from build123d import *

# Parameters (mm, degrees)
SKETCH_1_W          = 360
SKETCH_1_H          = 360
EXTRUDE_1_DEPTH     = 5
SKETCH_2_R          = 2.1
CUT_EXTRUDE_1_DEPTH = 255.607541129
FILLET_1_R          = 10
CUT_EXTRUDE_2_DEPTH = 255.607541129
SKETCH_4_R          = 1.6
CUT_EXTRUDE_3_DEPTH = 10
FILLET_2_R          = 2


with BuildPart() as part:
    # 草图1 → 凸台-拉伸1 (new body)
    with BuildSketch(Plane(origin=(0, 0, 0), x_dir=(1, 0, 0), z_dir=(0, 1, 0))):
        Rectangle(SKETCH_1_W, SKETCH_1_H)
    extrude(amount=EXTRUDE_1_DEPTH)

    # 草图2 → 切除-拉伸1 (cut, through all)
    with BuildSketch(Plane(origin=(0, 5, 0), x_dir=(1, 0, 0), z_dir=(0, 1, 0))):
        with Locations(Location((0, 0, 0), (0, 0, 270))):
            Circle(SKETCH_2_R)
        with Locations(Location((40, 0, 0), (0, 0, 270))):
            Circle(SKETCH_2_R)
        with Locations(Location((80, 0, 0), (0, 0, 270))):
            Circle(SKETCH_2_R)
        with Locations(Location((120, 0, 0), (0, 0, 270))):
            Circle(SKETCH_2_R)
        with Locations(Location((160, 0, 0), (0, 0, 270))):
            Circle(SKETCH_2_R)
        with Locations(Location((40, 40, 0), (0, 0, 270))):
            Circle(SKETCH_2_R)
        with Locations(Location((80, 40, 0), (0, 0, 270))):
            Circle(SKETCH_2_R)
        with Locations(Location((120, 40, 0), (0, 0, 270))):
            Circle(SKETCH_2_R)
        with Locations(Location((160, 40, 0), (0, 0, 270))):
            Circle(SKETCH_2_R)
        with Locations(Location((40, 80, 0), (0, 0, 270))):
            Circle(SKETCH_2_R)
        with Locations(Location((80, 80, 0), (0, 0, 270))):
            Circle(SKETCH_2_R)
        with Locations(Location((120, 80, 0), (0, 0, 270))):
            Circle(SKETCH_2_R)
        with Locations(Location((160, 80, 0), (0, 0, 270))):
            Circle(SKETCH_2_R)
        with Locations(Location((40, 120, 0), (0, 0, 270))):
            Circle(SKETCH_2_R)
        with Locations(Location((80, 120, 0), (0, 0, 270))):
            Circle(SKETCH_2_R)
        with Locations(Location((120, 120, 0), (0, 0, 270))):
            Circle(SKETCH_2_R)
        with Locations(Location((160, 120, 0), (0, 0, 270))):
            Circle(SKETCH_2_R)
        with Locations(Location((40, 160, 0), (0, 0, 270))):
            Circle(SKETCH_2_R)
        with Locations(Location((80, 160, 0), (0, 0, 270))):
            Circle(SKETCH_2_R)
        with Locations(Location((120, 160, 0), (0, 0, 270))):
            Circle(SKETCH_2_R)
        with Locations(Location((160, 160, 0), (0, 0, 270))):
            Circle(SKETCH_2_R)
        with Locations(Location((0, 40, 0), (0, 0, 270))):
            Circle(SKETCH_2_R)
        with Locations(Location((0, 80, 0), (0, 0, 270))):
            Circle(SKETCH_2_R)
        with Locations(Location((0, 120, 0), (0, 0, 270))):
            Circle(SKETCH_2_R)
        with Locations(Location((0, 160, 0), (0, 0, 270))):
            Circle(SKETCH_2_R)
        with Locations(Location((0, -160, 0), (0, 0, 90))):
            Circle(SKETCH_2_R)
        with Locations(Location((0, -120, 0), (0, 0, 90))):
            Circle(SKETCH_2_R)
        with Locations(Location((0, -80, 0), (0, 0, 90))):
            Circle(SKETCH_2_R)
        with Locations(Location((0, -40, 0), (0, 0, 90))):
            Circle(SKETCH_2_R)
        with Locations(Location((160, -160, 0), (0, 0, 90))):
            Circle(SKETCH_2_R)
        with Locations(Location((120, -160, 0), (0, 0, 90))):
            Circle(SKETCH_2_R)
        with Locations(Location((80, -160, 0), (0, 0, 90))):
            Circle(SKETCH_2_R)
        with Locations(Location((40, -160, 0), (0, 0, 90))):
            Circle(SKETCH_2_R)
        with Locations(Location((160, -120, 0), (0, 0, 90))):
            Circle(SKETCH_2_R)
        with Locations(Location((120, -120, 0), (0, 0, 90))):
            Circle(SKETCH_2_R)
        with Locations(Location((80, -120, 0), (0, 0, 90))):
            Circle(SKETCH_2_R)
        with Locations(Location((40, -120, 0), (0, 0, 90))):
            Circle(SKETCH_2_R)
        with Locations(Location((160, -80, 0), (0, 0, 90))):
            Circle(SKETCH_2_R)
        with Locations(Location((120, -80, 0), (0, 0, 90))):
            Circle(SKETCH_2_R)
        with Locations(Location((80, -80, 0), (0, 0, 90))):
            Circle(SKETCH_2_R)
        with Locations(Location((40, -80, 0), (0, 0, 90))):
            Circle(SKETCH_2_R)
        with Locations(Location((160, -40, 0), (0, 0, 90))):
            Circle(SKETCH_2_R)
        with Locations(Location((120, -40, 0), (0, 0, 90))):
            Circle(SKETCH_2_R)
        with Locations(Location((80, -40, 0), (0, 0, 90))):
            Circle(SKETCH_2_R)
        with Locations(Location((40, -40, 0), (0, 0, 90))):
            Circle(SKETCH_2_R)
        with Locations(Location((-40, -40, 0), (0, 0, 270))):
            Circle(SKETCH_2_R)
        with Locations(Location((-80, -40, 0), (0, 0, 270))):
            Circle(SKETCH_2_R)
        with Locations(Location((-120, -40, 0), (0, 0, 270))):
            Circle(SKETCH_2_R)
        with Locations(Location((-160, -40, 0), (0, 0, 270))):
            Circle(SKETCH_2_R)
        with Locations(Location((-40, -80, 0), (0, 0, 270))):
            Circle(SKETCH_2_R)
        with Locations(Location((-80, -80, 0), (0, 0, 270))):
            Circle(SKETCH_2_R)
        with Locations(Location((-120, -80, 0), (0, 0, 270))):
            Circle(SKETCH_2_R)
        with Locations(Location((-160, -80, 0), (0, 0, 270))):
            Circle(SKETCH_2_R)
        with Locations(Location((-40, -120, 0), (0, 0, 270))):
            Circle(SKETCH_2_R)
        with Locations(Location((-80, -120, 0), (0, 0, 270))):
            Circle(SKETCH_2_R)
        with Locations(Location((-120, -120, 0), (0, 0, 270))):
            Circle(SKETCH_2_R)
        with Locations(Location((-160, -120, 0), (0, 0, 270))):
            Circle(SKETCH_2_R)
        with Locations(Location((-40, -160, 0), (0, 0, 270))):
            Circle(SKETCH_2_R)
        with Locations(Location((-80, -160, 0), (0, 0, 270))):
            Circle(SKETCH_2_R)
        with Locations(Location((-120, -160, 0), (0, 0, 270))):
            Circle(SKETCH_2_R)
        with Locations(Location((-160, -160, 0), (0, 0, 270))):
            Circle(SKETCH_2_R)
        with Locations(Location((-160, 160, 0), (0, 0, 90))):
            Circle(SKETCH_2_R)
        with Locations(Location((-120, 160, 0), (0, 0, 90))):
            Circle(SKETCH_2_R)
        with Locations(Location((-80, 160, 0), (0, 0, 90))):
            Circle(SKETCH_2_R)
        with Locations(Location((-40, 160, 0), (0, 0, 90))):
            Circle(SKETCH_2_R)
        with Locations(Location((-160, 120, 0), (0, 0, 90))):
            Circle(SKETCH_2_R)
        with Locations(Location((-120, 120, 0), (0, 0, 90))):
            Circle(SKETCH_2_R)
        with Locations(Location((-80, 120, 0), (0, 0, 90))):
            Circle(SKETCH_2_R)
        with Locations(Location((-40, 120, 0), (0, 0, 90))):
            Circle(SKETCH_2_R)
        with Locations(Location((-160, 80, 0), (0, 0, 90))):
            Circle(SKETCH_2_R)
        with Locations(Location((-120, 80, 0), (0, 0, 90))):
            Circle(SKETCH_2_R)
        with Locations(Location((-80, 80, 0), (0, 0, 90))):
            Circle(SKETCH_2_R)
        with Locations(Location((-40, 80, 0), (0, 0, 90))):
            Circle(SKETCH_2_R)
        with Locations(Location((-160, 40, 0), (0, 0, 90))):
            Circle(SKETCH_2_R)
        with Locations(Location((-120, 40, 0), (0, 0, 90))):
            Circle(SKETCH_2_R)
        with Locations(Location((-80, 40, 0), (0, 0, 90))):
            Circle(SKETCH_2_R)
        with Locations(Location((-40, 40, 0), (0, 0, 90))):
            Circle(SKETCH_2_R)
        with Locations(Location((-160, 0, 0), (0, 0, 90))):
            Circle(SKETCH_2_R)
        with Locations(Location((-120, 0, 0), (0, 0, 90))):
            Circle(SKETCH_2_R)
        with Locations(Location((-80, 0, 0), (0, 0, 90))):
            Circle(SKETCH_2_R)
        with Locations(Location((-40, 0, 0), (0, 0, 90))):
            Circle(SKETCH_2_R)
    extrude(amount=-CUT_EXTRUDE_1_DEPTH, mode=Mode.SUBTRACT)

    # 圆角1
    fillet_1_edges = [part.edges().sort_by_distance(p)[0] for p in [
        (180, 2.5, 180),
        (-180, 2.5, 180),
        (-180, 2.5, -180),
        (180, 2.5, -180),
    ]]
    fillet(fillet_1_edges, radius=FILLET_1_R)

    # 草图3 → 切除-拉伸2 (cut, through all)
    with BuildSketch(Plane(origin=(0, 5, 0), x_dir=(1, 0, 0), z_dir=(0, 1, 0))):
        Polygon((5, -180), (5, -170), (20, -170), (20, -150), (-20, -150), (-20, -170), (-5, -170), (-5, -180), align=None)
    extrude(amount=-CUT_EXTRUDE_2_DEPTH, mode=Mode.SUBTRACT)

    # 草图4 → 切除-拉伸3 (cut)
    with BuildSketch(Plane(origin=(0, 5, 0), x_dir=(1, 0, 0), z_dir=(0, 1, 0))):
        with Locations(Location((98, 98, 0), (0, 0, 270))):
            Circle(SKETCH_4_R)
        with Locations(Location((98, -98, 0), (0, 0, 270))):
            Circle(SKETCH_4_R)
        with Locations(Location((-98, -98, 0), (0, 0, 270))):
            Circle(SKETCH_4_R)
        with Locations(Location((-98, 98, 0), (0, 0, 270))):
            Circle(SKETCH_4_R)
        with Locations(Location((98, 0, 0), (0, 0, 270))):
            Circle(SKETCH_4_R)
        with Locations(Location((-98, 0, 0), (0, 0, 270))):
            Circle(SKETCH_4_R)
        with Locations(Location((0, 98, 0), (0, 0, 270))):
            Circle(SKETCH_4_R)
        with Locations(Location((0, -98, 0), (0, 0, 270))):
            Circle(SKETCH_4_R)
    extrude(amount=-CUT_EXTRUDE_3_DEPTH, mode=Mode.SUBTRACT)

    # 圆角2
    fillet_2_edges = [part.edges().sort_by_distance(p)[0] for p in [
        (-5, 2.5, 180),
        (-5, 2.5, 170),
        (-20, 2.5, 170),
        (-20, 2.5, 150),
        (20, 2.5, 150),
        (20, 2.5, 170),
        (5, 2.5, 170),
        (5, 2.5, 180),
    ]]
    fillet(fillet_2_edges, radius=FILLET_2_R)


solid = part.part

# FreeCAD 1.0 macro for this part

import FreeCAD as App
import Part
import Sketcher
from FreeCAD import Vector


def edges_at(feature, points):
    """Names of the edges that pass closest to the given points."""
    edges = feature.Shape.Edges
    near = lambda p: min(range(len(edges)), key=lambda i: edges[i].distToShape(Part.Vertex(*p))[0])
    return sorted({f"Edge{near(p) + 1}" for p in points})

doc = App.newDocument("Part")
body = doc.addObject("PartDesign::Body", "Body")

sketch1 = body.newObject("Sketcher::SketchObject", "Sketch")
sketch1.AttachmentSupport = (doc.getObject("XZ_Plane"), [""])
sketch1.MapMode = "FlatFace"
sketch1.addGeometry(Part.LineSegment(Vector(-180, -180, 0), Vector(-180, 180, 0)), False)
sketch1.addGeometry(Part.LineSegment(Vector(-180, 180, 0), Vector(180, 180, 0)), False)
sketch1.addGeometry(Part.LineSegment(Vector(180, 180, 0), Vector(180, -180, 0)), False)
sketch1.addGeometry(Part.LineSegment(Vector(180, -180, 0), Vector(-180, -180, 0)), False)
sketch1.addConstraint(Sketcher.Constraint("Coincident", 0, 2, 1, 1))
sketch1.addConstraint(Sketcher.Constraint("Coincident", 1, 2, 2, 1))
sketch1.addConstraint(Sketcher.Constraint("Coincident", 2, 2, 3, 1))
sketch1.addConstraint(Sketcher.Constraint("Coincident", 3, 2, 0, 1))
sketch1.addConstraint(Sketcher.Constraint("Vertical", 0))
sketch1.addConstraint(Sketcher.Constraint("Horizontal", 1))
sketch1.addConstraint(Sketcher.Constraint("Vertical", 2))
sketch1.addConstraint(Sketcher.Constraint("Horizontal", 3))
sketch1.addConstraint(Sketcher.Constraint("Symmetric", 0, 2, 2, 2, -1, 1))
sketch1.addConstraint(Sketcher.Constraint("Equal", 3, 0))
sketch1.addConstraint(Sketcher.Constraint("DistanceX", 1, 1, 1, 2, 360.0))
pad1 = body.newObject("PartDesign::Pad", "Pad")
pad1.Profile = sketch1
pad1.Length = 5
pad1.Reversed = True

sketch2 = body.newObject("Sketcher::SketchObject", "Sketch001")
sketch2.AttachmentSupport = (doc.getObject("XZ_Plane"), [""])
sketch2.MapMode = "FlatFace"
sketch2.AttachmentOffset = App.Placement(Vector(0, 0, -5), App.Rotation())
sketch2.addGeometry(Part.Circle(Vector(0, 0, 0), Vector(0, 0, 1), 2.1), False)
sketch2.addGeometry(Part.Circle(Vector(40, 0, 0), Vector(0, 0, 1), 2.1), False)
sketch2.addGeometry(Part.Circle(Vector(80, 0, 0), Vector(0, 0, 1), 2.1), False)
sketch2.addGeometry(Part.Circle(Vector(120, 0, 0), Vector(0, 0, 1), 2.1), False)
sketch2.addGeometry(Part.Circle(Vector(160, 0, 0), Vector(0, 0, 1), 2.1), False)
sketch2.addGeometry(Part.Circle(Vector(40, -40, 0), Vector(0, 0, 1), 2.1), False)
sketch2.addGeometry(Part.Circle(Vector(80, -40, 0), Vector(0, 0, 1), 2.1), False)
sketch2.addGeometry(Part.Circle(Vector(120, -40, 0), Vector(0, 0, 1), 2.1), False)
sketch2.addGeometry(Part.Circle(Vector(160, -40, 0), Vector(0, 0, 1), 2.1), False)
sketch2.addGeometry(Part.Circle(Vector(40, -80, 0), Vector(0, 0, 1), 2.1), False)
sketch2.addGeometry(Part.Circle(Vector(80, -80, 0), Vector(0, 0, 1), 2.1), False)
sketch2.addGeometry(Part.Circle(Vector(120, -80, 0), Vector(0, 0, 1), 2.1), False)
sketch2.addGeometry(Part.Circle(Vector(160, -80, 0), Vector(0, 0, 1), 2.1), False)
sketch2.addGeometry(Part.Circle(Vector(40, -120, 0), Vector(0, 0, 1), 2.1), False)
sketch2.addGeometry(Part.Circle(Vector(80, -120, 0), Vector(0, 0, 1), 2.1), False)
sketch2.addGeometry(Part.Circle(Vector(120, -120, 0), Vector(0, 0, 1), 2.1), False)
sketch2.addGeometry(Part.Circle(Vector(160, -120, 0), Vector(0, 0, 1), 2.1), False)
sketch2.addGeometry(Part.Circle(Vector(40, -160, 0), Vector(0, 0, 1), 2.1), False)
sketch2.addGeometry(Part.Circle(Vector(80, -160, 0), Vector(0, 0, 1), 2.1), False)
sketch2.addGeometry(Part.Circle(Vector(120, -160, 0), Vector(0, 0, 1), 2.1), False)
sketch2.addGeometry(Part.Circle(Vector(160, -160, 0), Vector(0, 0, 1), 2.1), False)
sketch2.addGeometry(Part.Circle(Vector(0, -40, 0), Vector(0, 0, 1), 2.1), False)
sketch2.addGeometry(Part.Circle(Vector(0, -80, 0), Vector(0, 0, 1), 2.1), False)
sketch2.addGeometry(Part.Circle(Vector(0, -120, 0), Vector(0, 0, 1), 2.1), False)
sketch2.addGeometry(Part.Circle(Vector(0, -160, 0), Vector(0, 0, 1), 2.1), False)
sketch2.addGeometry(Part.Circle(Vector(0, 160, 0), Vector(0, 0, 1), 2.1), False)
sketch2.addGeometry(Part.Circle(Vector(0, 120, 0), Vector(0, 0, 1), 2.1), False)
sketch2.addGeometry(Part.Circle(Vector(0, 80, 0), Vector(0, 0, 1), 2.1), False)
sketch2.addGeometry(Part.Circle(Vector(0, 40, 0), Vector(0, 0, 1), 2.1), False)
sketch2.addGeometry(Part.Circle(Vector(160, 160, 0), Vector(0, 0, 1), 2.1), False)
sketch2.addGeometry(Part.Circle(Vector(120, 160, 0), Vector(0, 0, 1), 2.1), False)
sketch2.addGeometry(Part.Circle(Vector(80, 160, 0), Vector(0, 0, 1), 2.1), False)
sketch2.addGeometry(Part.Circle(Vector(40, 160, 0), Vector(0, 0, 1), 2.1), False)
sketch2.addGeometry(Part.Circle(Vector(160, 120, 0), Vector(0, 0, 1), 2.1), False)
sketch2.addGeometry(Part.Circle(Vector(120, 120, 0), Vector(0, 0, 1), 2.1), False)
sketch2.addGeometry(Part.Circle(Vector(80, 120, 0), Vector(0, 0, 1), 2.1), False)
sketch2.addGeometry(Part.Circle(Vector(40, 120, 0), Vector(0, 0, 1), 2.1), False)
sketch2.addGeometry(Part.Circle(Vector(160, 80, 0), Vector(0, 0, 1), 2.1), False)
sketch2.addGeometry(Part.Circle(Vector(120, 80, 0), Vector(0, 0, 1), 2.1), False)
sketch2.addGeometry(Part.Circle(Vector(80, 80, 0), Vector(0, 0, 1), 2.1), False)
sketch2.addGeometry(Part.Circle(Vector(40, 80, 0), Vector(0, 0, 1), 2.1), False)
sketch2.addGeometry(Part.Circle(Vector(160, 40, 0), Vector(0, 0, 1), 2.1), False)
sketch2.addGeometry(Part.Circle(Vector(120, 40, 0), Vector(0, 0, 1), 2.1), False)
sketch2.addGeometry(Part.Circle(Vector(80, 40, 0), Vector(0, 0, 1), 2.1), False)
sketch2.addGeometry(Part.Circle(Vector(40, 40, 0), Vector(0, 0, 1), 2.1), False)
sketch2.addGeometry(Part.Circle(Vector(-40, 40, 0), Vector(0, 0, 1), 2.1), False)
sketch2.addGeometry(Part.Circle(Vector(-80, 40, 0), Vector(0, 0, 1), 2.1), False)
sketch2.addGeometry(Part.Circle(Vector(-120, 40, 0), Vector(0, 0, 1), 2.1), False)
sketch2.addGeometry(Part.Circle(Vector(-160, 40, 0), Vector(0, 0, 1), 2.1), False)
sketch2.addGeometry(Part.Circle(Vector(-40, 80, 0), Vector(0, 0, 1), 2.1), False)
sketch2.addGeometry(Part.Circle(Vector(-80, 80, 0), Vector(0, 0, 1), 2.1), False)
sketch2.addGeometry(Part.Circle(Vector(-120, 80, 0), Vector(0, 0, 1), 2.1), False)
sketch2.addGeometry(Part.Circle(Vector(-160, 80, 0), Vector(0, 0, 1), 2.1), False)
sketch2.addGeometry(Part.Circle(Vector(-40, 120, 0), Vector(0, 0, 1), 2.1), False)
sketch2.addGeometry(Part.Circle(Vector(-80, 120, 0), Vector(0, 0, 1), 2.1), False)
sketch2.addGeometry(Part.Circle(Vector(-120, 120, 0), Vector(0, 0, 1), 2.1), False)
sketch2.addGeometry(Part.Circle(Vector(-160, 120, 0), Vector(0, 0, 1), 2.1), False)
sketch2.addGeometry(Part.Circle(Vector(-40, 160, 0), Vector(0, 0, 1), 2.1), False)
sketch2.addGeometry(Part.Circle(Vector(-80, 160, 0), Vector(0, 0, 1), 2.1), False)
sketch2.addGeometry(Part.Circle(Vector(-120, 160, 0), Vector(0, 0, 1), 2.1), False)
sketch2.addGeometry(Part.Circle(Vector(-160, 160, 0), Vector(0, 0, 1), 2.1), False)
sketch2.addGeometry(Part.Circle(Vector(-160, -160, 0), Vector(0, 0, 1), 2.1), False)
sketch2.addGeometry(Part.Circle(Vector(-120, -160, 0), Vector(0, 0, 1), 2.1), False)
sketch2.addGeometry(Part.Circle(Vector(-80, -160, 0), Vector(0, 0, 1), 2.1), False)
sketch2.addGeometry(Part.Circle(Vector(-40, -160, 0), Vector(0, 0, 1), 2.1), False)
sketch2.addGeometry(Part.Circle(Vector(-160, -120, 0), Vector(0, 0, 1), 2.1), False)
sketch2.addGeometry(Part.Circle(Vector(-120, -120, 0), Vector(0, 0, 1), 2.1), False)
sketch2.addGeometry(Part.Circle(Vector(-80, -120, 0), Vector(0, 0, 1), 2.1), False)
sketch2.addGeometry(Part.Circle(Vector(-40, -120, 0), Vector(0, 0, 1), 2.1), False)
sketch2.addGeometry(Part.Circle(Vector(-160, -80, 0), Vector(0, 0, 1), 2.1), False)
sketch2.addGeometry(Part.Circle(Vector(-120, -80, 0), Vector(0, 0, 1), 2.1), False)
sketch2.addGeometry(Part.Circle(Vector(-80, -80, 0), Vector(0, 0, 1), 2.1), False)
sketch2.addGeometry(Part.Circle(Vector(-40, -80, 0), Vector(0, 0, 1), 2.1), False)
sketch2.addGeometry(Part.Circle(Vector(-160, -40, 0), Vector(0, 0, 1), 2.1), False)
sketch2.addGeometry(Part.Circle(Vector(-120, -40, 0), Vector(0, 0, 1), 2.1), False)
sketch2.addGeometry(Part.Circle(Vector(-80, -40, 0), Vector(0, 0, 1), 2.1), False)
sketch2.addGeometry(Part.Circle(Vector(-40, -40, 0), Vector(0, 0, 1), 2.1), False)
sketch2.addGeometry(Part.Circle(Vector(-160, 0, 0), Vector(0, 0, 1), 2.1), False)
sketch2.addGeometry(Part.Circle(Vector(-120, 0, 0), Vector(0, 0, 1), 2.1), False)
sketch2.addGeometry(Part.Circle(Vector(-80, 0, 0), Vector(0, 0, 1), 2.1), False)
sketch2.addGeometry(Part.Circle(Vector(-40, 0, 0), Vector(0, 0, 1), 2.1), False)
sketch2.addConstraint(Sketcher.Constraint("Coincident", 0, 3, -1, 1))
sketch2.addConstraint(Sketcher.Constraint("Equal", 0, 1))
sketch2.addConstraint(Sketcher.Constraint("Equal", 1, 2))
sketch2.addConstraint(Sketcher.Constraint("Equal", 2, 3))
sketch2.addConstraint(Sketcher.Constraint("Equal", 3, 4))
sketch2.addConstraint(Sketcher.Constraint("Equal", 4, 5))
sketch2.addConstraint(Sketcher.Constraint("Equal", 5, 6))
sketch2.addConstraint(Sketcher.Constraint("Equal", 6, 7))
sketch2.addConstraint(Sketcher.Constraint("Equal", 7, 8))
sketch2.addConstraint(Sketcher.Constraint("Equal", 8, 9))
sketch2.addConstraint(Sketcher.Constraint("Equal", 9, 10))
sketch2.addConstraint(Sketcher.Constraint("Equal", 10, 11))
sketch2.addConstraint(Sketcher.Constraint("Equal", 11, 12))
sketch2.addConstraint(Sketcher.Constraint("Equal", 12, 13))
sketch2.addConstraint(Sketcher.Constraint("Equal", 13, 14))
sketch2.addConstraint(Sketcher.Constraint("Equal", 14, 15))
sketch2.addConstraint(Sketcher.Constraint("Equal", 15, 16))
sketch2.addConstraint(Sketcher.Constraint("Equal", 16, 17))
sketch2.addConstraint(Sketcher.Constraint("Equal", 17, 18))
sketch2.addConstraint(Sketcher.Constraint("Equal", 18, 19))
sketch2.addConstraint(Sketcher.Constraint("Equal", 19, 20))
sketch2.addConstraint(Sketcher.Constraint("Equal", 20, 21))
sketch2.addConstraint(Sketcher.Constraint("Equal", 21, 22))
sketch2.addConstraint(Sketcher.Constraint("Equal", 22, 23))
sketch2.addConstraint(Sketcher.Constraint("Equal", 23, 24))
sketch2.addConstraint(Sketcher.Constraint("Equal", 24, 25))
sketch2.addConstraint(Sketcher.Constraint("Equal", 25, 26))
sketch2.addConstraint(Sketcher.Constraint("Equal", 26, 27))
sketch2.addConstraint(Sketcher.Constraint("Equal", 27, 28))
sketch2.addConstraint(Sketcher.Constraint("Equal", 28, 29))
sketch2.addConstraint(Sketcher.Constraint("Equal", 29, 30))
sketch2.addConstraint(Sketcher.Constraint("Equal", 30, 31))
sketch2.addConstraint(Sketcher.Constraint("Equal", 31, 32))
sketch2.addConstraint(Sketcher.Constraint("Equal", 32, 33))
sketch2.addConstraint(Sketcher.Constraint("Equal", 33, 34))
sketch2.addConstraint(Sketcher.Constraint("Equal", 34, 35))
sketch2.addConstraint(Sketcher.Constraint("Equal", 35, 36))
sketch2.addConstraint(Sketcher.Constraint("Equal", 36, 37))
sketch2.addConstraint(Sketcher.Constraint("Equal", 37, 38))
sketch2.addConstraint(Sketcher.Constraint("Equal", 38, 39))
sketch2.addConstraint(Sketcher.Constraint("Equal", 39, 40))
sketch2.addConstraint(Sketcher.Constraint("Equal", 40, 41))
sketch2.addConstraint(Sketcher.Constraint("Equal", 41, 42))
sketch2.addConstraint(Sketcher.Constraint("Equal", 42, 43))
sketch2.addConstraint(Sketcher.Constraint("Equal", 43, 44))
sketch2.addConstraint(Sketcher.Constraint("Equal", 44, 45))
sketch2.addConstraint(Sketcher.Constraint("Equal", 45, 46))
sketch2.addConstraint(Sketcher.Constraint("Equal", 46, 47))
sketch2.addConstraint(Sketcher.Constraint("Equal", 47, 48))
sketch2.addConstraint(Sketcher.Constraint("Equal", 48, 49))
sketch2.addConstraint(Sketcher.Constraint("Equal", 49, 50))
sketch2.addConstraint(Sketcher.Constraint("Equal", 50, 51))
sketch2.addConstraint(Sketcher.Constraint("Equal", 51, 52))
sketch2.addConstraint(Sketcher.Constraint("Equal", 52, 53))
sketch2.addConstraint(Sketcher.Constraint("Equal", 53, 54))
sketch2.addConstraint(Sketcher.Constraint("Equal", 54, 55))
sketch2.addConstraint(Sketcher.Constraint("Equal", 55, 56))
sketch2.addConstraint(Sketcher.Constraint("Equal", 56, 57))
sketch2.addConstraint(Sketcher.Constraint("Equal", 57, 58))
sketch2.addConstraint(Sketcher.Constraint("Equal", 58, 59))
sketch2.addConstraint(Sketcher.Constraint("Equal", 59, 60))
sketch2.addConstraint(Sketcher.Constraint("Equal", 60, 61))
sketch2.addConstraint(Sketcher.Constraint("Equal", 61, 62))
sketch2.addConstraint(Sketcher.Constraint("Equal", 62, 63))
sketch2.addConstraint(Sketcher.Constraint("Equal", 63, 64))
sketch2.addConstraint(Sketcher.Constraint("Equal", 64, 65))
sketch2.addConstraint(Sketcher.Constraint("Equal", 65, 66))
sketch2.addConstraint(Sketcher.Constraint("Equal", 66, 67))
sketch2.addConstraint(Sketcher.Constraint("Equal", 67, 68))
sketch2.addConstraint(Sketcher.Constraint("Equal", 68, 69))
sketch2.addConstraint(Sketcher.Constraint("Equal", 69, 70))
sketch2.addConstraint(Sketcher.Constraint("Equal", 70, 71))
sketch2.addConstraint(Sketcher.Constraint("Equal", 71, 72))
sketch2.addConstraint(Sketcher.Constraint("Equal", 72, 73))
sketch2.addConstraint(Sketcher.Constraint("Equal", 73, 74))
sketch2.addConstraint(Sketcher.Constraint("Equal", 74, 75))
sketch2.addConstraint(Sketcher.Constraint("Equal", 75, 76))
sketch2.addConstraint(Sketcher.Constraint("Equal", 76, 77))
sketch2.addConstraint(Sketcher.Constraint("Equal", 77, 78))
sketch2.addConstraint(Sketcher.Constraint("Equal", 78, 79))
sketch2.addConstraint(Sketcher.Constraint("Equal", 79, 80))
sketch2.addConstraint(Sketcher.Constraint("Symmetric", 24, 3, 25, 3, -1, 1))
sketch2.addConstraint(Sketcher.Constraint("Symmetric", 23, 3, 26, 3, -1, 1))
sketch2.addConstraint(Sketcher.Constraint("Symmetric", 22, 3, 27, 3, -1, 1))
sketch2.addConstraint(Sketcher.Constraint("Symmetric", 21, 3, 28, 3, -1, 1))
sketch2.addConstraint(Sketcher.Constraint("Symmetric", 5, 3, 45, 3, -1, 1))
sketch2.addConstraint(Sketcher.Constraint("Symmetric", 6, 3, 46, 3, -1, 1))
sketch2.addConstraint(Sketcher.Constraint("Symmetric", 7, 3, 47, 3, -1, 1))
sketch2.addConstraint(Sketcher.Constraint("Symmetric", 8, 3, 48, 3, -1, 1))
sketch2.addConstraint(Sketcher.Constraint("Symmetric", 9, 3, 49, 3, -1, 1))
sketch2.addConstraint(Sketcher.Constraint("Symmetric", 10, 3, 50, 3, -1, 1))
sketch2.addConstraint(Sketcher.Constraint("Symmetric", 11, 3, 51, 3, -1, 1))
sketch2.addConstraint(Sketcher.Constraint("Symmetric", 12, 3, 52, 3, -1, 1))
sketch2.addConstraint(Sketcher.Constraint("Symmetric", 13, 3, 53, 3, -1, 1))
sketch2.addConstraint(Sketcher.Constraint("Symmetric", 14, 3, 54, 3, -1, 1))
sketch2.addConstraint(Sketcher.Constraint("Symmetric", 15, 3, 55, 3, -1, 1))
sketch2.addConstraint(Sketcher.Constraint("Symmetric", 16, 3, 56, 3, -1, 1))
sketch2.addConstraint(Sketcher.Constraint("Symmetric", 17, 3, 57, 3, -1, 1))
sketch2.addConstraint(Sketcher.Constraint("Symmetric", 18, 3, 58, 3, -1, 1))
sketch2.addConstraint(Sketcher.Constraint("Symmetric", 19, 3, 59, 3, -1, 1))
sketch2.addConstraint(Sketcher.Constraint("Symmetric", 20, 3, 60, 3, -1, 1))
sketch2.addConstraint(Sketcher.Constraint("Symmetric", 29, 3, 61, 3, -1, 1))
sketch2.addConstraint(Sketcher.Constraint("Symmetric", 30, 3, 62, 3, -1, 1))
sketch2.addConstraint(Sketcher.Constraint("Symmetric", 31, 3, 63, 3, -1, 1))
sketch2.addConstraint(Sketcher.Constraint("Symmetric", 32, 3, 64, 3, -1, 1))
sketch2.addConstraint(Sketcher.Constraint("Symmetric", 33, 3, 65, 3, -1, 1))
sketch2.addConstraint(Sketcher.Constraint("Symmetric", 34, 3, 66, 3, -1, 1))
sketch2.addConstraint(Sketcher.Constraint("Symmetric", 35, 3, 67, 3, -1, 1))
sketch2.addConstraint(Sketcher.Constraint("Symmetric", 36, 3, 68, 3, -1, 1))
sketch2.addConstraint(Sketcher.Constraint("Symmetric", 37, 3, 69, 3, -1, 1))
sketch2.addConstraint(Sketcher.Constraint("Symmetric", 38, 3, 70, 3, -1, 1))
sketch2.addConstraint(Sketcher.Constraint("Symmetric", 39, 3, 71, 3, -1, 1))
sketch2.addConstraint(Sketcher.Constraint("Symmetric", 40, 3, 72, 3, -1, 1))
sketch2.addConstraint(Sketcher.Constraint("Symmetric", 41, 3, 73, 3, -1, 1))
sketch2.addConstraint(Sketcher.Constraint("Symmetric", 42, 3, 74, 3, -1, 1))
sketch2.addConstraint(Sketcher.Constraint("Symmetric", 43, 3, 75, 3, -1, 1))
sketch2.addConstraint(Sketcher.Constraint("Symmetric", 44, 3, 76, 3, -1, 1))
sketch2.addConstraint(Sketcher.Constraint("Symmetric", 4, 3, 77, 3, -1, 1))
sketch2.addConstraint(Sketcher.Constraint("Symmetric", 3, 3, 78, 3, -1, 1))
sketch2.addConstraint(Sketcher.Constraint("Symmetric", 2, 3, 79, 3, -1, 1))
sketch2.addConstraint(Sketcher.Constraint("Symmetric", 1, 3, 80, 3, -1, 1))
sketch2.addConstraint(Sketcher.Constraint("Symmetric", 44, 3, 45, 3, -2))
sketch2.addConstraint(Sketcher.Constraint("Symmetric", 43, 3, 46, 3, -2))
sketch2.addConstraint(Sketcher.Constraint("Symmetric", 42, 3, 47, 3, -2))
sketch2.addConstraint(Sketcher.Constraint("Symmetric", 41, 3, 48, 3, -2))
sketch2.addConstraint(Sketcher.Constraint("Symmetric", 40, 3, 49, 3, -2))
sketch2.addConstraint(Sketcher.Constraint("Symmetric", 39, 3, 50, 3, -2))
sketch2.addConstraint(Sketcher.Constraint("Symmetric", 38, 3, 51, 3, -2))
sketch2.addConstraint(Sketcher.Constraint("Symmetric", 37, 3, 52, 3, -2))
sketch2.addConstraint(Sketcher.Constraint("Symmetric", 36, 3, 53, 3, -2))
sketch2.addConstraint(Sketcher.Constraint("Symmetric", 35, 3, 54, 3, -2))
sketch2.addConstraint(Sketcher.Constraint("Symmetric", 34, 3, 55, 3, -2))
sketch2.addConstraint(Sketcher.Constraint("Symmetric", 33, 3, 56, 3, -2))
sketch2.addConstraint(Sketcher.Constraint("Symmetric", 32, 3, 57, 3, -2))
sketch2.addConstraint(Sketcher.Constraint("Symmetric", 31, 3, 58, 3, -2))
sketch2.addConstraint(Sketcher.Constraint("Symmetric", 30, 3, 59, 3, -2))
sketch2.addConstraint(Sketcher.Constraint("Symmetric", 29, 3, 60, 3, -2))
sketch2.addConstraint(Sketcher.Constraint("PointOnObject", 1, 3, -1))
sketch2.addConstraint(Sketcher.Constraint("PointOnObject", 2, 3, -1))
sketch2.addConstraint(Sketcher.Constraint("PointOnObject", 3, 3, -1))
sketch2.addConstraint(Sketcher.Constraint("PointOnObject", 4, 3, -1))
sketch2.addConstraint(Sketcher.Constraint("PointOnObject", 21, 3, -2))
sketch2.addConstraint(Sketcher.Constraint("PointOnObject", 22, 3, -2))
sketch2.addConstraint(Sketcher.Constraint("PointOnObject", 23, 3, -2))
sketch2.addConstraint(Sketcher.Constraint("PointOnObject", 24, 3, -2))
sketch2.addConstraint(Sketcher.Constraint("Horizontal", 5, 3, 6, 3))
sketch2.addConstraint(Sketcher.Constraint("Horizontal", 6, 3, 7, 3))
sketch2.addConstraint(Sketcher.Constraint("Horizontal", 7, 3, 8, 3))
sketch2.addConstraint(Sketcher.Constraint("Horizontal", 9, 3, 10, 3))
sketch2.addConstraint(Sketcher.Constraint("Horizontal", 10, 3, 11, 3))
sketch2.addConstraint(Sketcher.Constraint("Horizontal", 11, 3, 12, 3))
sketch2.addConstraint(Sketcher.Constraint("Horizontal", 13, 3, 14, 3))
sketch2.addConstraint(Sketcher.Constraint("Horizontal", 14, 3, 15, 3))
sketch2.addConstraint(Sketcher.Constraint("Horizontal", 15, 3, 16, 3))
sketch2.addConstraint(Sketcher.Constraint("Horizontal", 17, 3, 18, 3))
sketch2.addConstraint(Sketcher.Constraint("Horizontal", 18, 3, 19, 3))
sketch2.addConstraint(Sketcher.Constraint("Horizontal", 19, 3, 20, 3))
sketch2.addConstraint(Sketcher.Constraint("Horizontal", 8, 3, 21, 3))
sketch2.addConstraint(Sketcher.Constraint("Horizontal", 12, 3, 22, 3))
sketch2.addConstraint(Sketcher.Constraint("Horizontal", 16, 3, 23, 3))
sketch2.addConstraint(Sketcher.Constraint("Horizontal", 20, 3, 24, 3))
sketch2.addConstraint(Sketcher.Constraint("Vertical", 1, 3, 5, 3))
sketch2.addConstraint(Sketcher.Constraint("Vertical", 2, 3, 6, 3))
sketch2.addConstraint(Sketcher.Constraint("Vertical", 3, 3, 7, 3))
sketch2.addConstraint(Sketcher.Constraint("Vertical", 4, 3, 8, 3))
sketch2.addConstraint(Sketcher.Constraint("Vertical", 5, 3, 9, 3))
sketch2.addConstraint(Sketcher.Constraint("Vertical", 6, 3, 10, 3))
sketch2.addConstraint(Sketcher.Constraint("Vertical", 7, 3, 11, 3))
sketch2.addConstraint(Sketcher.Constraint("Vertical", 8, 3, 12, 3))
sketch2.addConstraint(Sketcher.Constraint("Vertical", 9, 3, 13, 3))
sketch2.addConstraint(Sketcher.Constraint("Vertical", 10, 3, 14, 3))
sketch2.addConstraint(Sketcher.Constraint("Vertical", 11, 3, 15, 3))
sketch2.addConstraint(Sketcher.Constraint("Vertical", 12, 3, 16, 3))
sketch2.addConstraint(Sketcher.Constraint("Vertical", 13, 3, 17, 3))
sketch2.addConstraint(Sketcher.Constraint("Vertical", 14, 3, 18, 3))
sketch2.addConstraint(Sketcher.Constraint("Vertical", 15, 3, 19, 3))
sketch2.addConstraint(Sketcher.Constraint("Vertical", 16, 3, 20, 3))
sketch2.addConstraint(Sketcher.Constraint("Diameter", 0, 4.2))
sketch2.addConstraint(Sketcher.Constraint("DistanceX", -1, 1, 1, 3, 40.0))
sketch2.addConstraint(Sketcher.Constraint("DistanceX", -1, 1, 2, 3, 80.0))
sketch2.addConstraint(Sketcher.Constraint("DistanceX", -1, 1, 3, 3, 120.0))
sketch2.addConstraint(Sketcher.Constraint("DistanceX", -1, 1, 4, 3, 160.0))
sketch2.addConstraint(Sketcher.Constraint("DistanceY", 5, 3, -1, 1, 40.0))
sketch2.addConstraint(Sketcher.Constraint("DistanceY", 9, 3, -1, 1, 80.0))
sketch2.addConstraint(Sketcher.Constraint("DistanceY", 13, 3, -1, 1, 120.0))
sketch2.addConstraint(Sketcher.Constraint("DistanceY", 17, 3, -1, 1, 160.0))
pocket1 = body.newObject("PartDesign::Pocket", "Pocket")
pocket1.Profile = sketch2
pocket1.Type = "ThroughAll"
pocket1.Reversed = True
doc.recompute()

fillet = body.newObject("PartDesign::Fillet", "Fillet")
fillet.Base = (pocket1, edges_at(pocket1, [
    (180, 2.5, 180),
    (-180, 2.5, 180),
    (-180, 2.5, -180),
    (180, 2.5, -180),
]))
fillet.Radius = 10

sketch3 = body.newObject("Sketcher::SketchObject", "Sketch002")
sketch3.AttachmentSupport = (doc.getObject("XZ_Plane"), [""])
sketch3.MapMode = "FlatFace"
sketch3.AttachmentOffset = App.Placement(Vector(0, 0, -5), App.Rotation())
sketch3.addGeometry(Part.LineSegment(Vector(5, 180, 0), Vector(5, 170, 0)), False)
sketch3.addGeometry(Part.LineSegment(Vector(5, 170, 0), Vector(20, 170, 0)), False)
sketch3.addGeometry(Part.LineSegment(Vector(20, 170, 0), Vector(20, 150, 0)), False)
sketch3.addGeometry(Part.LineSegment(Vector(20, 150, 0), Vector(-20, 150, 0)), False)
sketch3.addGeometry(Part.LineSegment(Vector(-20, 150, 0), Vector(-20, 170, 0)), False)
sketch3.addGeometry(Part.LineSegment(Vector(-20, 170, 0), Vector(-5, 170, 0)), False)
sketch3.addGeometry(Part.LineSegment(Vector(-5, 170, 0), Vector(-5, 180, 0)), False)
sketch3.addGeometry(Part.LineSegment(Vector(-5, 180, 0), Vector(5, 180, 0)), False)
sketch3.addConstraint(Sketcher.Constraint("Coincident", 0, 2, 1, 1))
sketch3.addConstraint(Sketcher.Constraint("Coincident", 1, 2, 2, 1))
sketch3.addConstraint(Sketcher.Constraint("Coincident", 2, 2, 3, 1))
sketch3.addConstraint(Sketcher.Constraint("Coincident", 3, 2, 4, 1))
sketch3.addConstraint(Sketcher.Constraint("Coincident", 4, 2, 5, 1))
sketch3.addConstraint(Sketcher.Constraint("Coincident", 5, 2, 6, 1))
sketch3.addConstraint(Sketcher.Constraint("Coincident", 6, 2, 7, 1))
sketch3.addConstraint(Sketcher.Constraint("Coincident", 7, 2, 0, 1))
sketch3.addConstraint(Sketcher.Constraint("Vertical", 0))
sketch3.addConstraint(Sketcher.Constraint("Horizontal", 1))
sketch3.addConstraint(Sketcher.Constraint("Vertical", 2))
sketch3.addConstraint(Sketcher.Constraint("Horizontal", 3))
sketch3.addConstraint(Sketcher.Constraint("Vertical", 4))
sketch3.addConstraint(Sketcher.Constraint("Horizontal", 5))
sketch3.addConstraint(Sketcher.Constraint("Vertical", 6))
sketch3.addConstraint(Sketcher.Constraint("Horizontal", 7))
sketch3.addConstraint(Sketcher.Constraint("Symmetric", 1, 2, 4, 2, -2))
sketch3.addConstraint(Sketcher.Constraint("Equal", 1, 5))
sketch3.addConstraint(Sketcher.Constraint("Equal", 7, 0))
sketch3.addConstraint(Sketcher.Constraint("DistanceX", 1, 1, 1, 2, 15.0))
sketch3.addConstraint(Sketcher.Constraint("DistanceX", 3, 2, 3, 1, 40.0))
sketch3.addConstraint(Sketcher.Constraint("DistanceY", 2, 2, 2, 1, 20.0))
sketch3.addConstraint(Sketcher.Constraint("DistanceY", -1, 1, 0, 2, 170.0))
pocket2 = body.newObject("PartDesign::Pocket", "Pocket001")
pocket2.Profile = sketch3
pocket2.Type = "ThroughAll"
pocket2.Reversed = True

sketch4 = body.newObject("Sketcher::SketchObject", "Sketch003")
sketch4.AttachmentSupport = (doc.getObject("XZ_Plane"), [""])
sketch4.MapMode = "FlatFace"
sketch4.AttachmentOffset = App.Placement(Vector(0, 0, -5), App.Rotation())
sketch4.addGeometry(Part.Circle(Vector(98, -98, 0), Vector(0, 0, 1), 1.6), False)
sketch4.addGeometry(Part.Circle(Vector(98, 98, 0), Vector(0, 0, 1), 1.6), False)
sketch4.addGeometry(Part.Circle(Vector(-98, 98, 0), Vector(0, 0, 1), 1.6), False)
sketch4.addGeometry(Part.Circle(Vector(-98, -98, 0), Vector(0, 0, 1), 1.6), False)
sketch4.addGeometry(Part.Circle(Vector(98, 0, 0), Vector(0, 0, 1), 1.6), False)
sketch4.addGeometry(Part.Circle(Vector(-98, 0, 0), Vector(0, 0, 1), 1.6), False)
sketch4.addGeometry(Part.Circle(Vector(0, -98, 0), Vector(0, 0, 1), 1.6), False)
sketch4.addGeometry(Part.Circle(Vector(0, 98, 0), Vector(0, 0, 1), 1.6), False)
sketch4.addConstraint(Sketcher.Constraint("Equal", 0, 1))
sketch4.addConstraint(Sketcher.Constraint("Equal", 1, 2))
sketch4.addConstraint(Sketcher.Constraint("Equal", 2, 3))
sketch4.addConstraint(Sketcher.Constraint("Equal", 3, 4))
sketch4.addConstraint(Sketcher.Constraint("Equal", 4, 5))
sketch4.addConstraint(Sketcher.Constraint("Equal", 5, 6))
sketch4.addConstraint(Sketcher.Constraint("Equal", 6, 7))
sketch4.addConstraint(Sketcher.Constraint("Symmetric", 0, 3, 2, 3, -1, 1))
sketch4.addConstraint(Sketcher.Constraint("Symmetric", 1, 3, 3, 3, -1, 1))
sketch4.addConstraint(Sketcher.Constraint("Symmetric", 4, 3, 5, 3, -1, 1))
sketch4.addConstraint(Sketcher.Constraint("Symmetric", 6, 3, 7, 3, -1, 1))
sketch4.addConstraint(Sketcher.Constraint("Symmetric", 1, 3, 2, 3, -2))
sketch4.addConstraint(Sketcher.Constraint("PointOnObject", 4, 3, -1))
sketch4.addConstraint(Sketcher.Constraint("PointOnObject", 6, 3, -2))
sketch4.addConstraint(Sketcher.Constraint("Horizontal", 3, 3, 6, 3))
sketch4.addConstraint(Sketcher.Constraint("Vertical", 1, 3, 4, 3))
sketch4.addConstraint(Sketcher.Constraint("Diameter", 0, 3.2))
sketch4.addConstraint(Sketcher.Constraint("DistanceX", -1, 1, 0, 3, 98.0))
sketch4.addConstraint(Sketcher.Constraint("DistanceY", 0, 3, -1, 1, 98.0))
pocket3 = body.newObject("PartDesign::Pocket", "Pocket002")
pocket3.Profile = sketch4
pocket3.Length = 10
pocket3.Reversed = True
doc.recompute()

fillet2 = body.newObject("PartDesign::Fillet", "Fillet001")
fillet2.Base = (pocket3, edges_at(pocket3, [
    (-5, 2.5, 180),
    (-5, 2.5, 170),
    (-20, 2.5, 170),
    (-20, 2.5, 150),
    (20, 2.5, 150),
    (20, 2.5, 170),
    (5, 2.5, 170),
    (5, 2.5, 180),
]))
fillet2.Radius = 2

doc.recompute()
